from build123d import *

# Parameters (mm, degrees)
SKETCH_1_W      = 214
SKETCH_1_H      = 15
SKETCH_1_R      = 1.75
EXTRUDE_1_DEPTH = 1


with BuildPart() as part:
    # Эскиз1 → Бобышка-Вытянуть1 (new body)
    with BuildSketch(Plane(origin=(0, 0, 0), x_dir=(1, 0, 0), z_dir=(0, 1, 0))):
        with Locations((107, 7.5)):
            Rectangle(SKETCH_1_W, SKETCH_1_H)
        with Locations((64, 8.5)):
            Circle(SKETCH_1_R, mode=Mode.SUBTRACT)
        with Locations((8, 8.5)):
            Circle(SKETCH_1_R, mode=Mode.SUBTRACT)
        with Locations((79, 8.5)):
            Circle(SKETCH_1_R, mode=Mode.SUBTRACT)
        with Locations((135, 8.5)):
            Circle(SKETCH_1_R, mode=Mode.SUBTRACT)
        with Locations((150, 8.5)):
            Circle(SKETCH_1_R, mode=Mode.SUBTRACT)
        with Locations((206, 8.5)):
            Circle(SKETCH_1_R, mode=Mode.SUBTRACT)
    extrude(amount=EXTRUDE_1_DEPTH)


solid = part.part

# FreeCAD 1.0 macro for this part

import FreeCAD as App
import Part
import Sketcher

V = App.Vector
Q = App.Units.Quantity

doc = App.newDocument("Part")
body = doc.addObject("PartDesign::Body", "Body")

sketch1 = body.newObject("Sketcher::SketchObject", "Sketch")
sketch1.AttachmentSupport = (doc.getObject("XZ_Plane"), [""])
sketch1.MapMode = "FlatFace"
sketch1.addGeometry(Part.LineSegment(V(0, -15, 0), V(0, 0, 0)), False)
sketch1.addGeometry(Part.LineSegment(V(0, 0, 0), V(214, 0, 0)), False)
sketch1.addGeometry(Part.LineSegment(V(214, 0, 0), V(214, -15, 0)), False)
sketch1.addGeometry(Part.LineSegment(V(214, -15, 0), V(0, -15, 0)), False)
sketch1.addGeometry(Part.Circle(V(8, -8.5, 0), V(0, 0, 1), 1.8), False)
sketch1.addGeometry(Part.Circle(V(64, -8.5, 0), V(0, 0, 1), 1.8), False)
sketch1.addGeometry(Part.Circle(V(79, -8.5, 0), V(0, 0, 1), 1.8), False)
sketch1.addGeometry(Part.Circle(V(135, -8.5, 0), V(0, 0, 1), 1.8), False)
sketch1.addGeometry(Part.Circle(V(150, -8.5, 0), V(0, 0, 1), 1.8), False)
sketch1.addGeometry(Part.Circle(V(206, -8.5, 0), V(0, 0, 1), 1.8), False)
sketch1.addConstraint(Sketcher.Constraint("Coincident", 0, 2, 1, 1))
sketch1.addConstraint(Sketcher.Constraint("Coincident", 1, 2, 2, 1))
sketch1.addConstraint(Sketcher.Constraint("Coincident", 2, 2, 3, 1))
sketch1.addConstraint(Sketcher.Constraint("Coincident", 3, 2, 0, 1))
sketch1.addConstraint(Sketcher.Constraint("Vertical", 0))
sketch1.addConstraint(Sketcher.Constraint("Horizontal", 1))
sketch1.addConstraint(Sketcher.Constraint("Vertical", 2))
sketch1.addConstraint(Sketcher.Constraint("Horizontal", 3))
sketch1.addConstraint(Sketcher.Constraint("Coincident", 0, 2, -1, 1))
sketch1.addConstraint(Sketcher.Constraint("Equal", 4, 5))
sketch1.addConstraint(Sketcher.Constraint("Equal", 5, 6))
sketch1.addConstraint(Sketcher.Constraint("Equal", 6, 7))
sketch1.addConstraint(Sketcher.Constraint("Equal", 7, 8))
sketch1.addConstraint(Sketcher.Constraint("Equal", 8, 9))
sketch1.addConstraint(Sketcher.Constraint("Horizontal", 4, 3, 5, 3))
sketch1.addConstraint(Sketcher.Constraint("Horizontal", 5, 3, 6, 3))
sketch1.addConstraint(Sketcher.Constraint("Horizontal", 6, 3, 7, 3))
sketch1.addConstraint(Sketcher.Constraint("Horizontal", 7, 3, 8, 3))
sketch1.addConstraint(Sketcher.Constraint("Horizontal", 8, 3, 9, 3))
sketch1.addConstraint(Sketcher.Constraint("Diameter", 4, Q("3.5 mm")))
sketch1.addConstraint(Sketcher.Constraint("DistanceX", 1, 1, 1, 2, Q("214 mm")))
sketch1.addConstraint(Sketcher.Constraint("DistanceY", 0, 1, 0, 2, Q("15 mm")))
sketch1.addConstraint(Sketcher.Constraint("DistanceX", -1, 1, 4, 3, Q("8 mm")))
sketch1.addConstraint(Sketcher.Constraint("DistanceX", -1, 1, 5, 3, Q("64 mm")))
sketch1.addConstraint(Sketcher.Constraint("DistanceX", -1, 1, 6, 3, Q("79 mm")))
sketch1.addConstraint(Sketcher.Constraint("DistanceX", -1, 1, 7, 3, Q("135 mm")))
sketch1.addConstraint(Sketcher.Constraint("DistanceX", -1, 1, 8, 3, Q("150 mm")))
sketch1.addConstraint(Sketcher.Constraint("DistanceX", -1, 1, 9, 3, Q("206 mm")))
sketch1.addConstraint(Sketcher.Constraint("DistanceY", 4, 3, -1, 1, Q("8.5 mm")))
pad1 = body.newObject("PartDesign::Pad", "Pad")
pad1.Profile = sketch1
pad1.Length = 1
pad1.Reversed = True

doc.recompute()
